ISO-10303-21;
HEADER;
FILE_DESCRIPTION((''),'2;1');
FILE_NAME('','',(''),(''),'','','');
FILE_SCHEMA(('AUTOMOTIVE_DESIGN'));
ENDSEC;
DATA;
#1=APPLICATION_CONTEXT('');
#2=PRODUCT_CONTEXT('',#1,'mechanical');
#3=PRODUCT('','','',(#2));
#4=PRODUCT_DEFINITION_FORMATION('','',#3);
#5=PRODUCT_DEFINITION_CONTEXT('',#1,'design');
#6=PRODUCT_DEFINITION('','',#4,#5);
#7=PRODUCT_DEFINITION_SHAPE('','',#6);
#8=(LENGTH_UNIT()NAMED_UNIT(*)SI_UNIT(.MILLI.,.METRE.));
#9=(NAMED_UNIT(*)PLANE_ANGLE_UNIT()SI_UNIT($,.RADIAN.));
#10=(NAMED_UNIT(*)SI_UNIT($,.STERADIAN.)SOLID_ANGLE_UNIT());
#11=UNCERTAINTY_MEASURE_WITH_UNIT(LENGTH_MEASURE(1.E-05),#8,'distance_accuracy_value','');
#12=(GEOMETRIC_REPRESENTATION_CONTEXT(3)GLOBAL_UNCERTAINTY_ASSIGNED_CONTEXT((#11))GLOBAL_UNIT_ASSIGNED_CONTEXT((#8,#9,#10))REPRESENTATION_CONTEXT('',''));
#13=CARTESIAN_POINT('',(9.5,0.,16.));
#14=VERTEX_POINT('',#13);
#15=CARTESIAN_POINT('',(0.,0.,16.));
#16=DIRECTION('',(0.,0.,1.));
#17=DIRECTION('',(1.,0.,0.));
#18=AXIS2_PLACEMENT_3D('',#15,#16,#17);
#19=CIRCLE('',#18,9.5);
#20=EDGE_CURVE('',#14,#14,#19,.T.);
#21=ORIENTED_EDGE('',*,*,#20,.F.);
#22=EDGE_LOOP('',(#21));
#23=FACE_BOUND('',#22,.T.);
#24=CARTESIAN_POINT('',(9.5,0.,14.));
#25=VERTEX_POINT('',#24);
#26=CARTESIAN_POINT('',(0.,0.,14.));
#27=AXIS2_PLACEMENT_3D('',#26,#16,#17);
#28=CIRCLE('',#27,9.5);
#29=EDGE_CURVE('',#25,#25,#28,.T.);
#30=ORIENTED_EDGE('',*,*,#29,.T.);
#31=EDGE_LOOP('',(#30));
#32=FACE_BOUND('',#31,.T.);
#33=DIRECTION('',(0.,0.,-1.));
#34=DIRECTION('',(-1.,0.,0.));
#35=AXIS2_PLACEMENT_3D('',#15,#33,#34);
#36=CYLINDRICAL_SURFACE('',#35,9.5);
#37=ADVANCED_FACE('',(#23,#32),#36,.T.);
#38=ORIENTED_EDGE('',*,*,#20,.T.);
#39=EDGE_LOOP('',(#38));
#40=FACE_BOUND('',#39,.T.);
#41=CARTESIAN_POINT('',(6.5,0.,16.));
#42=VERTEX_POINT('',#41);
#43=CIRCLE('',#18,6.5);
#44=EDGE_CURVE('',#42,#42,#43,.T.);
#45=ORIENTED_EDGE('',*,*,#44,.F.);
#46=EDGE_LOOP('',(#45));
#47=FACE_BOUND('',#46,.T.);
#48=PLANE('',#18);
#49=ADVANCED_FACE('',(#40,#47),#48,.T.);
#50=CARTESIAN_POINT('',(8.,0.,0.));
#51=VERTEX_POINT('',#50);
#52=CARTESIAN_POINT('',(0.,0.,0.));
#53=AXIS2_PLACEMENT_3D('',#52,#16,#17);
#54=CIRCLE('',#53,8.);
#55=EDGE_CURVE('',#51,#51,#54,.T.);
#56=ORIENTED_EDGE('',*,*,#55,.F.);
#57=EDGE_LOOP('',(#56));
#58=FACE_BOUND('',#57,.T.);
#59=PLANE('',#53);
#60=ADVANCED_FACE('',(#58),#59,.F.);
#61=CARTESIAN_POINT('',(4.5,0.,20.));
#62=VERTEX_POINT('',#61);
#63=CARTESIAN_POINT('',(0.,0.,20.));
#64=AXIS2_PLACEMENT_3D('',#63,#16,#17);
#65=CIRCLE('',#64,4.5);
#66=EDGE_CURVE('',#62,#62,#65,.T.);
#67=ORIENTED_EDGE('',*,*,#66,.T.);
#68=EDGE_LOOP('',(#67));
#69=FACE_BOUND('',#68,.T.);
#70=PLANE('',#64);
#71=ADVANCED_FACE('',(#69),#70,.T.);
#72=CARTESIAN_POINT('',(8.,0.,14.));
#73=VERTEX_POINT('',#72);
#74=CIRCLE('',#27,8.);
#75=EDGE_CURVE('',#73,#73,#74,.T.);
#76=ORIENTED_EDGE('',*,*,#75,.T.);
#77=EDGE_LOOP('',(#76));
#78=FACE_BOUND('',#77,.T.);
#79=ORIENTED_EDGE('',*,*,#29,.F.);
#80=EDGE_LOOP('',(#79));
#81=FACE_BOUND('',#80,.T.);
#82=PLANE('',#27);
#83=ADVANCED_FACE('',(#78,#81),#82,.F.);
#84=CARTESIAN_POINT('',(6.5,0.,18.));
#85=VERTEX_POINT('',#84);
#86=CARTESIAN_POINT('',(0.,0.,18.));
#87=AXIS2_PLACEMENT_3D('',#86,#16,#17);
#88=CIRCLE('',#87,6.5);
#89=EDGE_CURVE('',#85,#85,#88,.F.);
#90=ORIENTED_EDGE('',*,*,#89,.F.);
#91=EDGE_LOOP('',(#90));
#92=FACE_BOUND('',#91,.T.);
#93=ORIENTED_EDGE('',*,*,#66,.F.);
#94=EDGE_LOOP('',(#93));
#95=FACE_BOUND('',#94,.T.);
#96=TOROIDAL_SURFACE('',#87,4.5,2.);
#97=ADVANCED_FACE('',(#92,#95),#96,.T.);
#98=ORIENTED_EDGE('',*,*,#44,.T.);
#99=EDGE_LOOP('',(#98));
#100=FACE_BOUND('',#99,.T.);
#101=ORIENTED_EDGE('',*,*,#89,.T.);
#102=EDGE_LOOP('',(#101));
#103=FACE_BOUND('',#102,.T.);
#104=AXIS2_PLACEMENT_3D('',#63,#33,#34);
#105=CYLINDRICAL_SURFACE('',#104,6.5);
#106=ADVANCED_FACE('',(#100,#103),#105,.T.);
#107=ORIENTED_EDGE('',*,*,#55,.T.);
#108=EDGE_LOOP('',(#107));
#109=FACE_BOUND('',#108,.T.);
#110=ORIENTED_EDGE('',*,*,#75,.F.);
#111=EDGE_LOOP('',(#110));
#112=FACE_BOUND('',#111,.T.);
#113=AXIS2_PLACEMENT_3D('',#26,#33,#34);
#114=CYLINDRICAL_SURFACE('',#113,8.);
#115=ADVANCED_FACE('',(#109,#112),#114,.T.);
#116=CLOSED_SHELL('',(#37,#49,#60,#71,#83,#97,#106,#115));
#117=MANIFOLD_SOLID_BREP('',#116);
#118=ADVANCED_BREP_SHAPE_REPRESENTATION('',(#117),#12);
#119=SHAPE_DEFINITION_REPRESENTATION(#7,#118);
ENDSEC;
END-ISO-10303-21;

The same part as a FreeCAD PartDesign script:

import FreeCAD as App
import Part
import Sketcher
from FreeCAD import Vector
Q = App.Units.Quantity


def edges_at(feature, points):
    """Names of the edges that pass closest to the given points."""
    edges = feature.Shape.Edges
    near = lambda p: min(range(len(edges)), key=lambda i: edges[i].distToShape(Part.Vertex(*p))[0])
    return sorted({f"Edge{near(p) + 1}" for p in points})

doc = App.newDocument("Part")
body = doc.addObject("PartDesign::Body", "Body")

# Sketch on XY plane
sketch1 = body.newObject("Sketcher::SketchObject", "Sketch")
sketch1.AttachmentSupport = (doc.getObject("XY_Plane"), [""])
sketch1.MapMode = "FlatFace"
sketch1.addGeometry(Part.Circle(Vector(0, 0, 0), Vector(0, 0, 1), 8), False)
sketch1.addConstraint(Sketcher.Constraint("Coincident", 0, 3, -1, 1))
sketch1.addConstraint(Sketcher.Constraint("Diameter", 0, Q("16 mm")))
pad1 = body.newObject("PartDesign::Pad", "Pad")
pad1.Profile = sketch1
pad1.Length = 14

# Sketch on XY plane
sketch2 = body.newObject("Sketcher::SketchObject", "Sketch001")
sketch2.AttachmentSupport = (doc.getObject("XY_Plane"), [""])
sketch2.MapMode = "FlatFace"
sketch2.AttachmentOffset = App.Placement(Vector(0, 0, 14), App.Rotation())
sketch2.addGeometry(Part.Circle(Vector(0, 0, 0), Vector(0, 0, 1), 9.5), False)
sketch2.addConstraint(Sketcher.Constraint("Coincident", 0, 3, -1, 1))
sketch2.addConstraint(Sketcher.Constraint("Diameter", 0, Q("19 mm")))
pad2 = body.newObject("PartDesign::Pad", "Pad001")
pad2.Profile = sketch2
pad2.Length = 2

# Sketch on XY plane
sketch3 = body.newObject("Sketcher::SketchObject", "Sketch002")
sketch3.AttachmentSupport = (doc.getObject("XY_Plane"), [""])
sketch3.MapMode = "FlatFace"
sketch3.AttachmentOffset = App.Placement(Vector(0, 0, 16), App.Rotation())
sketch3.addGeometry(Part.Circle(Vector(0, 0, 0), Vector(0, 0, 1), 6.5), False)
sketch3.addConstraint(Sketcher.Constraint("Coincident", 0, 3, -1, 1))
sketch3.addConstraint(Sketcher.Constraint("Diameter", 0, Q("13 mm")))
pad3 = body.newObject("PartDesign::Pad", "Pad002")
pad3.Profile = sketch3
pad3.Length = 4
doc.recompute()

fillet = body.newObject("PartDesign::Fillet", "Fillet")
fillet.Base = (pad3, edges_at(pad3, [(-6.5, 0, 20)]))
fillet.Radius = 2

doc.recompute()
